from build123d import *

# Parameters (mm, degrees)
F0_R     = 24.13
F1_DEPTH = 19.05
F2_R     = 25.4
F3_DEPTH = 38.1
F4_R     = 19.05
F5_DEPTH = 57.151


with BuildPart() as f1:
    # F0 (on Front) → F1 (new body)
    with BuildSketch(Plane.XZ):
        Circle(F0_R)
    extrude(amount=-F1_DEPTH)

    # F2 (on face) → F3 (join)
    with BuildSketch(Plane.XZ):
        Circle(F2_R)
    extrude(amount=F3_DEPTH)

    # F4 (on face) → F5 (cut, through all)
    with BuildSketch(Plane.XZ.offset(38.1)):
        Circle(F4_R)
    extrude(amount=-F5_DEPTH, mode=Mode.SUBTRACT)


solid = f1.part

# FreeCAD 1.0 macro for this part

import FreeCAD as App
import Part
import Sketcher

V = App.Vector
Q = App.Units.Quantity

doc = App.newDocument("Part")
body = doc.addObject("PartDesign::Body", "Body")

sketch1 = body.newObject("Sketcher::SketchObject", "Sketch")
sketch1.AttachmentSupport = (doc.getObject("XZ_Plane"), [""])
sketch1.MapMode = "FlatFace"
sketch1.addGeometry(Part.Circle(V(0, 0, 0), V(0, 0, 1), 24), False)
sketch1.addConstraint([
    Sketcher.Constraint("Coincident", 0, 3, -1, 1),
    Sketcher.Constraint("Diameter", 0, Q("1.9 in")),
])
pad1 = body.newObject("PartDesign::Pad", "Pad")
pad1.Profile = sketch1
pad1.Length = Q("0.75 in")
pad1.Reversed = True

sketch2 = body.newObject("Sketcher::SketchObject", "Sketch001")
sketch2.AttachmentSupport = (doc.getObject("XZ_Plane"), [""])
sketch2.MapMode = "FlatFace"
sketch2.addGeometry(Part.Circle(V(0, 0, 0), V(0, 0, 1), 25), False)
sketch2.addConstraint([
    Sketcher.Constraint("Coincident", 0, 3, -1, 1),
    Sketcher.Constraint("Diameter", 0, Q("2 in")),
])
pad2 = body.newObject("PartDesign::Pad", "Pad001")
pad2.Profile = sketch2
pad2.Length = Q("1.5 in")

sketch3 = body.newObject("Sketcher::SketchObject", "Sketch002")
sketch3.AttachmentSupport = (doc.getObject("XZ_Plane"), [""])
sketch3.MapMode = "FlatFace"
sketch3.AttachmentOffset = App.Placement(V(0, 0, 1.5 * 25.4), App.Rotation())
sketch3.addGeometry(Part.Circle(V(0, 0, 0), V(0, 0, 1), 19), False)
sketch3.addConstraint([
    Sketcher.Constraint("Coincident", 0, 3, -1, 1),
    Sketcher.Constraint("Diameter", 0, Q("1.5 in")),
])
pocket1 = body.newObject("PartDesign::Pocket", "Pocket")
pocket1.Profile = sketch3
pocket1.Type = "ThroughAll"

doc.recompute()
